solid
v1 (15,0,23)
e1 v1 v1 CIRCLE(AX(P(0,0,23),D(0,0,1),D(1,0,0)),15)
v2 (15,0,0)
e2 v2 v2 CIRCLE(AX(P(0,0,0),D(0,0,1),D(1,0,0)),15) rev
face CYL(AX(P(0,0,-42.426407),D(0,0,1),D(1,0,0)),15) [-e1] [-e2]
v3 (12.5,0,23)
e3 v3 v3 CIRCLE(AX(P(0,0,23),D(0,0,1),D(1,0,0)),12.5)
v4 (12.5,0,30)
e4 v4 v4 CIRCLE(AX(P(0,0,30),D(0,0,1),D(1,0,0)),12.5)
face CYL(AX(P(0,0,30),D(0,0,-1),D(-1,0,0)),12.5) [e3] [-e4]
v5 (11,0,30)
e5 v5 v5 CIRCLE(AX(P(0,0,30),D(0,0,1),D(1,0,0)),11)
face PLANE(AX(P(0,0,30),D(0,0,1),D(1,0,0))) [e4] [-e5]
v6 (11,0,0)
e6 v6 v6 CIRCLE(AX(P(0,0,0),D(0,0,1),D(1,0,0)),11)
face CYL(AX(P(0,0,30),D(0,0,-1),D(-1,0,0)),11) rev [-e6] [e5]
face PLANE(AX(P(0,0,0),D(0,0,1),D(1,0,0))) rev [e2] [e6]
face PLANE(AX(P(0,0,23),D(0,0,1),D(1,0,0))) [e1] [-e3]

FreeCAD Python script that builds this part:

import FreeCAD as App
import Part
import Sketcher
from FreeCAD import Vector

doc = App.newDocument("Part")
body = doc.addObject("PartDesign::Body", "Body")

sketch1 = body.newObject("Sketcher::SketchObject", "Sketch")
sketch1.AttachmentSupport = (doc.getObject("XY_Plane"), [""])
sketch1.MapMode = "FlatFace"
sketch1.addGeometry(Part.Circle(Vector(0, 0, 0), Vector(0, 0, 1), 12), False)
sketch1.addGeometry(Part.Circle(Vector(0, 0, 0), Vector(0, 0, 1), 11), False)
sketch1.addConstraint(Sketcher.Constraint("Coincident", 0, 3, -1, 1))
sketch1.addConstraint(Sketcher.Constraint("Coincident", 1, 3, -1, 1))
sketch1.addConstraint(Sketcher.Constraint("Diameter", 0, 25.0))
sketch1.addConstraint(Sketcher.Constraint("Diameter", 1, 22.0))
pad1 = body.newObject("PartDesign::Pad", "Pad")
pad1.Profile = sketch1
pad1.Length = 30

sketch2 = body.newObject("Sketcher::SketchObject", "Sketch001")
sketch2.AttachmentSupport = (doc.getObject("XY_Plane"), [""])
sketch2.MapMode = "FlatFace"
sketch2.addGeometry(Part.Circle(Vector(0, 0, 0), Vector(0, 0, 1), 15), False)
sketch2.addGeometry(Part.Circle(Vector(0, 0, 0), Vector(0, 0, 1), 12), False)
sketch2.addConstraint(Sketcher.Constraint("Coincident", 0, 3, -1, 1))
sketch2.addConstraint(Sketcher.Constraint("Coincident", 1, 3, -1, 1))
sketch2.addConstraint(Sketcher.Constraint("Diameter", 0, 30.0))
sketch2.addConstraint(Sketcher.Constraint("Diameter", 1, 25.0))
pad2 = body.newObject("PartDesign::Pad", "Pad001")
pad2.Profile = sketch2
pad2.Length = 23

doc.recompute()
